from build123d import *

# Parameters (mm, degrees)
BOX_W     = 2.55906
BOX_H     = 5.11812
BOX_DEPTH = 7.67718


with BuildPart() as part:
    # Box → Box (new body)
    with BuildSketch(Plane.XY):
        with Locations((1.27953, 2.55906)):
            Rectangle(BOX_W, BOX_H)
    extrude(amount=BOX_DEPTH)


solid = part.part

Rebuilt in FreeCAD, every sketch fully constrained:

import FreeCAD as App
import Part
import Sketcher


def add_polygon(sketch, points):
    """Adds a closed chain of lines whose ends are joined by coincident constraints."""
    first, n = sketch.GeometryCount, len(points)
    for a, b in zip(points, points[1:] + points[:1]):
        sketch.addGeometry(Part.LineSegment(App.Vector(*a, 0), App.Vector(*b, 0)), False)
    for i in range(n):
        sketch.addConstraint(Sketcher.Constraint("Coincident", first + i, 2, first + (i + 1) % n, 1))

doc = App.newDocument("Part")
body = doc.addObject("PartDesign::Body", "Body")

sketch1 = body.newObject("Sketcher::SketchObject", "Sketch")
sketch1.AttachmentSupport = (doc.getObject("XY_Plane"), [""])
sketch1.MapMode = "FlatFace"
add_polygon(sketch1, [(0, 5.1), (0, 0), (2.6, 0), (2.6, 5.1)])
sketch1.addConstraint(Sketcher.Constraint("Vertical", 0))
sketch1.addConstraint(Sketcher.Constraint("Horizontal", 1))
sketch1.addConstraint(Sketcher.Constraint("Vertical", 2))
sketch1.addConstraint(Sketcher.Constraint("Horizontal", 3))
sketch1.addConstraint(Sketcher.Constraint("Coincident", 0, 2, -1, 1))
sketch1.addConstraint(Sketcher.Constraint("DistanceX", 1, 1, 1, 2, 2.55906))
sketch1.addConstraint(Sketcher.Constraint("DistanceY", 0, 2, 0, 1, 5.11812))
pad1 = body.newObject("PartDesign::Pad", "Pad")
pad1.Profile = sketch1
pad1.Length = 7.67718

doc.recompute()
